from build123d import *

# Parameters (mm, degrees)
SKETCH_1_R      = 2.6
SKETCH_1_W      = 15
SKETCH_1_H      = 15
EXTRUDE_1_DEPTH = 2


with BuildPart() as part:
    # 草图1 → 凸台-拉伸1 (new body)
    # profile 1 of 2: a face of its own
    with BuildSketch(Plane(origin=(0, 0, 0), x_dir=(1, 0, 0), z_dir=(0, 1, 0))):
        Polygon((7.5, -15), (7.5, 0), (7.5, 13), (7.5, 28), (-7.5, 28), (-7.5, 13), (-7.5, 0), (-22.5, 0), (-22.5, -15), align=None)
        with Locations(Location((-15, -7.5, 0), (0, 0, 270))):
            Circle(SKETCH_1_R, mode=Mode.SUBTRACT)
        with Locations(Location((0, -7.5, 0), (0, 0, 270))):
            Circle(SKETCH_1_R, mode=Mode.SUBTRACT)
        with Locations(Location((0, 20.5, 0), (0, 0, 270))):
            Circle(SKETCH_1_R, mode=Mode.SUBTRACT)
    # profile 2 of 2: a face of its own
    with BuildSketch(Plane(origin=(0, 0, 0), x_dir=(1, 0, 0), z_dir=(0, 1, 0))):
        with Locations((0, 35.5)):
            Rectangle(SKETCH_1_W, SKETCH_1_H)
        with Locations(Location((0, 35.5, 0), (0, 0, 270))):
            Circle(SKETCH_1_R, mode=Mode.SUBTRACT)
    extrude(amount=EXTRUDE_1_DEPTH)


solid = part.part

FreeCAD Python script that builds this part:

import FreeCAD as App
import Part
import Sketcher

doc = App.newDocument("Part")
body = doc.addObject("PartDesign::Body", "Body")

# Sketch on XZ plane
sketch1 = body.newObject("Sketcher::SketchObject", "Sketch")
sketch1.AttachmentSupport = (doc.getObject("XZ_Plane"), [""])
sketch1.MapMode = "FlatFace"
sketch1.addGeometry(Part.LineSegment(App.Vector(7.5, 15, 0), App.Vector(7.5, -43, 0)), False)
sketch1.addGeometry(Part.LineSegment(App.Vector(7.5, -43, 0), App.Vector(-7.5, -43, 0)), False)
sketch1.addGeometry(Part.LineSegment(App.Vector(-7.5, -43, 0), App.Vector(-7.5, 0, 0)), False)
sketch1.addGeometry(Part.LineSegment(App.Vector(-7.5, 0, 0), App.Vector(-22.5, 0, 0)), False)
sketch1.addGeometry(Part.LineSegment(App.Vector(-22.5, 0, 0), App.Vector(-22.5, 15, 0)), False)
sketch1.addGeometry(Part.LineSegment(App.Vector(-22.5, 15, 0), App.Vector(7.5, 15, 0)), False)
sketch1.addGeometry(Part.Circle(App.Vector(-15, 7.5, 0), App.Vector(0, 0, 1), 2.6), False)
sketch1.addGeometry(Part.Circle(App.Vector(0, 7.5, 0), App.Vector(0, 0, 1), 2.6), False)
sketch1.addGeometry(Part.Circle(App.Vector(0, -20.5, 0), App.Vector(0, 0, 1), 2.6), False)
sketch1.addGeometry(Part.Circle(App.Vector(0, -35.5, 0), App.Vector(0, 0, 1), 2.6), False)
sketch1.addConstraint(Sketcher.Constraint("Coincident", 0, 2, 1, 1))
sketch1.addConstraint(Sketcher.Constraint("Coincident", 1, 2, 2, 1))
sketch1.addConstraint(Sketcher.Constraint("Coincident", 2, 2, 3, 1))
sketch1.addConstraint(Sketcher.Constraint("Coincident", 3, 2, 4, 1))
sketch1.addConstraint(Sketcher.Constraint("Coincident", 4, 2, 5, 1))
sketch1.addConstraint(Sketcher.Constraint("Coincident", 5, 2, 0, 1))
sketch1.addConstraint(Sketcher.Constraint("Vertical", 0))
sketch1.addConstraint(Sketcher.Constraint("Horizontal", 1))
sketch1.addConstraint(Sketcher.Constraint("Vertical", 2))
sketch1.addConstraint(Sketcher.Constraint("Horizontal", 3))
sketch1.addConstraint(Sketcher.Constraint("Vertical", 4))
sketch1.addConstraint(Sketcher.Constraint("Horizontal", 5))
sketch1.addConstraint(Sketcher.Constraint("Equal", 6, 7))
sketch1.addConstraint(Sketcher.Constraint("Equal", 7, 8))
sketch1.addConstraint(Sketcher.Constraint("Equal", 8, 9))
sketch1.addConstraint(Sketcher.Constraint("PointOnObject", 7, 3, -2))
sketch1.addConstraint(Sketcher.Constraint("PointOnObject", 8, 3, -2))
sketch1.addConstraint(Sketcher.Constraint("PointOnObject", 9, 3, -2))
sketch1.addConstraint(Sketcher.Constraint("PointOnObject", 2, 2, -1))
sketch1.addConstraint(Sketcher.Constraint("Horizontal", 6, 3, 7, 3))
sketch1.addConstraint(Sketcher.Constraint("Equal", 1, 3))
sketch1.addConstraint(Sketcher.Constraint("Equal", 3, 4))
sketch1.addConstraint(Sketcher.Constraint("Diameter", 6, 5.2))
sketch1.addConstraint(Sketcher.Constraint("DistanceX", 1, 2, 1, 1, 15.0))
sketch1.addConstraint(Sketcher.Constraint("DistanceY", 0, 2, 0, 1, 58.0))
sketch1.addConstraint(Sketcher.Constraint("DistanceX", 6, 3, -1, 1, 15.0))
sketch1.addConstraint(Sketcher.Constraint("DistanceY", 8, 3, 7, 3, 28.0))
sketch1.addConstraint(Sketcher.Constraint("DistanceY", 9, 3, 8, 3, 15.0))
sketch1.addConstraint(Sketcher.Constraint("DistanceY", -1, 1, 6, 3, 7.5))
sketch1.addConstraint(Sketcher.Constraint("DistanceX", -1, 1, 0, 2, 7.5))
pad1 = body.newObject("PartDesign::Pad", "Pad")
pad1.Profile = sketch1
pad1.Length = 2
pad1.Reversed = True

doc.recompute()
